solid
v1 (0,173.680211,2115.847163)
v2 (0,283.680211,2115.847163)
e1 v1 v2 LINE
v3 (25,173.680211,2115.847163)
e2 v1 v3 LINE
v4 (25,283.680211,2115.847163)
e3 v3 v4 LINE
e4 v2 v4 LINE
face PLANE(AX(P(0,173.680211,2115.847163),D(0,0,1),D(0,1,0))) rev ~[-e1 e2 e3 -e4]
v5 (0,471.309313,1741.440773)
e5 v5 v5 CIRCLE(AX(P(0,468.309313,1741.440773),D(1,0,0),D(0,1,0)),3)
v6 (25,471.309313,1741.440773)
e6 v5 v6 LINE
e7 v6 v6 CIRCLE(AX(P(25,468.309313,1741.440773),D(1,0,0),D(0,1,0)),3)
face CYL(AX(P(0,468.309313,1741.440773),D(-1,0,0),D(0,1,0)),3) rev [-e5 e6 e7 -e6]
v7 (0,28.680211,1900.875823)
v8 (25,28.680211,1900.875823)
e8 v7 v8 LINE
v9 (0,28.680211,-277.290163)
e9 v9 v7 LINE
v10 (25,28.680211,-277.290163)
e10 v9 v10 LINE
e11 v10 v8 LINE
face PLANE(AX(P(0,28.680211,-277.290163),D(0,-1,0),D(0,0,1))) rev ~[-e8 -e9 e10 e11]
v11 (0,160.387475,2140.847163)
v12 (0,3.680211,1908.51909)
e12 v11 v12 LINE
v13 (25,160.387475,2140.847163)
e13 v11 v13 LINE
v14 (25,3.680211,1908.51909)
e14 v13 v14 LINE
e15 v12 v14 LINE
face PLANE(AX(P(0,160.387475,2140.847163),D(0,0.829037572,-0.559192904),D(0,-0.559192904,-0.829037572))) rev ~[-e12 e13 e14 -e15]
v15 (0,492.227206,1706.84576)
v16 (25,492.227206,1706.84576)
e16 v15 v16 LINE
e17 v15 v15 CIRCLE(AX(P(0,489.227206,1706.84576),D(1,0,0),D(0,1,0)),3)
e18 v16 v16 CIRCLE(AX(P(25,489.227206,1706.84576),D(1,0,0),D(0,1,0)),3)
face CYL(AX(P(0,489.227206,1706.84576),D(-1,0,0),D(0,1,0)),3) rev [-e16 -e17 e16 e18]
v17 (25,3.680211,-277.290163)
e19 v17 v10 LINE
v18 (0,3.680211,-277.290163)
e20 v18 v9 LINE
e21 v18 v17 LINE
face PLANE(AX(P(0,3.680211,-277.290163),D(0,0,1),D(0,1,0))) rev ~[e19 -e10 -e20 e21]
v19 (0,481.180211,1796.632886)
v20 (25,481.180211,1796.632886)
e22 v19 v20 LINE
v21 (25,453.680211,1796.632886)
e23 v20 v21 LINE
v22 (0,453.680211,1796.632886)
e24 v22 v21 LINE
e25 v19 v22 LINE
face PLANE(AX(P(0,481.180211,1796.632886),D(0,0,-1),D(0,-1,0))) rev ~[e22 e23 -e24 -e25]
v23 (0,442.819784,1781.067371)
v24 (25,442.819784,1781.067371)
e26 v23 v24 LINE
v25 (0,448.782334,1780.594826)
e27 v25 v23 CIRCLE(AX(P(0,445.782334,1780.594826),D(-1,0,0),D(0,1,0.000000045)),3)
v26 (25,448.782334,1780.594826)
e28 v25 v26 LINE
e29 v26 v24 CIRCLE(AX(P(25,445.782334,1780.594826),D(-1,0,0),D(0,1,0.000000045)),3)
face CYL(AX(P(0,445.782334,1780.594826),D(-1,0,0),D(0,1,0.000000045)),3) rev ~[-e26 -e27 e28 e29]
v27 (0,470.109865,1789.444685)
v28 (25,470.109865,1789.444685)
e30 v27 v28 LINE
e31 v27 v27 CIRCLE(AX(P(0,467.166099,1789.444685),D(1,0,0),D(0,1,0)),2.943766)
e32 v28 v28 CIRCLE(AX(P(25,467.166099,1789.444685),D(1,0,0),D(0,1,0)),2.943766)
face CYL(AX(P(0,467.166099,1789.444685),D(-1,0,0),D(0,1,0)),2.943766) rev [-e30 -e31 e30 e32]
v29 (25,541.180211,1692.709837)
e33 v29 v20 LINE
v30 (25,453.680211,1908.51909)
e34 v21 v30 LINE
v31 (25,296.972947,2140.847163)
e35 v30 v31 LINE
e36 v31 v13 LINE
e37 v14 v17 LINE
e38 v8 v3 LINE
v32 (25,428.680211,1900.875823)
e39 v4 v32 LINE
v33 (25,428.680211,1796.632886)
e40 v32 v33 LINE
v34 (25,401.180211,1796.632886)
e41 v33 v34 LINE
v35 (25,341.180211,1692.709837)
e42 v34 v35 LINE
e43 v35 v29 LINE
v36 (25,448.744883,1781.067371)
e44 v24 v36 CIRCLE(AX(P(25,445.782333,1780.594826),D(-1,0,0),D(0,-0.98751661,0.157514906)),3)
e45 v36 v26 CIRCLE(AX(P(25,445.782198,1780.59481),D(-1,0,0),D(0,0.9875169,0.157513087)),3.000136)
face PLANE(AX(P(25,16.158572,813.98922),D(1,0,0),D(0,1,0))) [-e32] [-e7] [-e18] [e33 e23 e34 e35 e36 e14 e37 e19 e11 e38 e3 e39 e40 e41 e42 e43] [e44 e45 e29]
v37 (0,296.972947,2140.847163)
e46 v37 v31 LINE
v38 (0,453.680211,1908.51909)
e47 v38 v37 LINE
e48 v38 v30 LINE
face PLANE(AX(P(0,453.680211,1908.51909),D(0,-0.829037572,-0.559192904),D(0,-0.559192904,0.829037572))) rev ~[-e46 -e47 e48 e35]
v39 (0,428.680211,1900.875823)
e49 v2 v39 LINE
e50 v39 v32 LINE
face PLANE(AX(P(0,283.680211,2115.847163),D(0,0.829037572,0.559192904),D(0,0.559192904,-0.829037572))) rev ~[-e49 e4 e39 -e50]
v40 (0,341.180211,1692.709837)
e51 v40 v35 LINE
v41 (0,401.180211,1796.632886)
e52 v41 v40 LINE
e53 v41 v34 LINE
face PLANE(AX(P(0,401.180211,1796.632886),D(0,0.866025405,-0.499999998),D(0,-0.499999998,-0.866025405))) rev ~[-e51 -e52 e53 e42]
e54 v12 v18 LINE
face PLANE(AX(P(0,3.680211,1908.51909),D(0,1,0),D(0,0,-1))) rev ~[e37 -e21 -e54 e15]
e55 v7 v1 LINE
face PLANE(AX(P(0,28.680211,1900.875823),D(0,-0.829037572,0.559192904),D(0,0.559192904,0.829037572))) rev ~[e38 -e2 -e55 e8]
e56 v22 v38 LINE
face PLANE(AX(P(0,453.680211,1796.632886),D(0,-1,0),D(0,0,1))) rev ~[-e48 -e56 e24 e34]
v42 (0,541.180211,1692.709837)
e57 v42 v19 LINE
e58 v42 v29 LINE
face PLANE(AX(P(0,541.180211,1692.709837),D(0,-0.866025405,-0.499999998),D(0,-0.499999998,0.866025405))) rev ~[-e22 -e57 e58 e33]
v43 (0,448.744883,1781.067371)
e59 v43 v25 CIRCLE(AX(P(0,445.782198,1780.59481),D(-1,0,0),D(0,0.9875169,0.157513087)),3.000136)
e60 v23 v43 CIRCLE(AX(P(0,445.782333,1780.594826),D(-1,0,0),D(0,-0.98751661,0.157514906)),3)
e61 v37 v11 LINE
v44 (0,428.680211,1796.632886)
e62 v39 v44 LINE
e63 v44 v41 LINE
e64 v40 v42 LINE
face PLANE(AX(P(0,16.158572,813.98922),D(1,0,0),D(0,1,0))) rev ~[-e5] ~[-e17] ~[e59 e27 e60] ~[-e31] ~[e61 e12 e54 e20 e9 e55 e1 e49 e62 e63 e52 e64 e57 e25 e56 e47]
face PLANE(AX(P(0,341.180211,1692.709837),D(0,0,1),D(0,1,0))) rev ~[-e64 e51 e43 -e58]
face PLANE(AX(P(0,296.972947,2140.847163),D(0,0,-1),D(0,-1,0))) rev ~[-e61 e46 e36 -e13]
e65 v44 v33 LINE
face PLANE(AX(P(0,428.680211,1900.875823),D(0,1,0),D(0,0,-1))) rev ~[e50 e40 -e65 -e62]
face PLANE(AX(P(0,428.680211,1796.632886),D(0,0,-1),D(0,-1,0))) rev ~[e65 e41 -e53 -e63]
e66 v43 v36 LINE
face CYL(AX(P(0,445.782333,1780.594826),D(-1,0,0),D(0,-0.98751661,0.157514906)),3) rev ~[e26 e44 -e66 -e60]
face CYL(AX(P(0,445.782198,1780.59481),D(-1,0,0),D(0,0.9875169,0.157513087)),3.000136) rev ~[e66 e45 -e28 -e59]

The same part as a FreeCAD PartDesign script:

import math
import FreeCAD as App
import Part
import Sketcher
from FreeCAD import Vector
Q = App.Units.Quantity

doc = App.newDocument("Part")
body = doc.addObject("PartDesign::Body", "Body")

# Sketch on YZ plane
sketch1 = body.newObject("Sketcher::SketchObject", "Sketch")
sketch1.AttachmentSupport = (doc.getObject("YZ_Plane"), [""])
sketch1.MapMode = "FlatFace"
sketch1.addGeometry([
    Part.LineSegment(Vector(3.680211, 1908.51909, 0), Vector(3.680211, -277.290163, 0)),  # 0
    Part.LineSegment(Vector(3.680211, -277.290163, 0), Vector(28.680211, -277.290163, 0)),  # 1
    Part.LineSegment(Vector(28.680211, -277.290163, 0), Vector(28.680211, 1900.875823, 0)),  # 2
    Part.LineSegment(Vector(28.680211, 1900.875823, 0), Vector(173.680211, 2115.847163, 0)),  # 3
    Part.LineSegment(Vector(173.680211, 2115.847163, 0), Vector(283.680211, 2115.847163, 0)),  # 4
    Part.LineSegment(Vector(283.680211, 2115.847163, 0), Vector(428.680211, 1900.875823, 0)),  # 5
    Part.LineSegment(Vector(428.680211, 1900.875823, 0), Vector(428.680211, 1796.632886, 0)),  # 6
    Part.LineSegment(Vector(428.680211, 1796.632886, 0), Vector(401.180211, 1796.632886, 0)),  # 7
    Part.LineSegment(Vector(401.180211, 1796.632886, 0), Vector(341.180211, 1692.709837, 0)),  # 8
    Part.LineSegment(Vector(341.180211, 1692.709837, 0), Vector(541.180211, 1692.709837, 0)),  # 9
    Part.LineSegment(Vector(541.180211, 1692.709837, 0), Vector(481.180211, 1796.632886, 0)),  # 10
    Part.LineSegment(Vector(481.180211, 1796.632886, 0), Vector(453.680211, 1796.632886, 0)),  # 11
    Part.LineSegment(Vector(453.680211, 1796.632886, 0), Vector(453.680211, 1908.51909, 0)),  # 12
    Part.LineSegment(Vector(453.680211, 1908.51909, 0), Vector(296.972947, 2140.847163, 0)),  # 13
    Part.LineSegment(Vector(296.972947, 2140.847163, 0), Vector(160.387475, 2140.847163, 0)),  # 14
    Part.LineSegment(Vector(160.387475, 2140.847163, 0), Vector(3.680211, 1908.51909, 0)),  # 15
    Part.Circle(Vector(489.227206, 1706.84576, 0), Vector(0, 0, 1), 3),  # 16
    Part.Circle(Vector(468.309313, 1741.440773, 0), Vector(0, 0, 1), 3),  # 17
    Part.ArcOfCircle(Part.Circle(Vector(445.782333, 1780.594826, 0), Vector(0, 0, 1), 3), math.radians(9.062682), math.radians(170.937318)),  # 18
    Part.ArcOfCircle(Part.Circle(Vector(445.782198, 1780.59481, 0), Vector(0, 0, 1), 3.000136), math.radians(0.0003), math.radians(9.062576)),  # 19
    Part.ArcOfCircle(Part.Circle(Vector(445.782334, 1780.594826, 0), Vector(0, 0, 1), 3), math.radians(170.937311), math.radians(360.000003)),  # 20
    Part.Circle(Vector(467.166099, 1789.444685, 0), Vector(0, 0, 1), 2.943766),  # 21
], False)
sketch1.addConstraint([
    Sketcher.Constraint("Coincident", 0, 2, 1, 1),
    Sketcher.Constraint("Coincident", 1, 2, 2, 1),
    Sketcher.Constraint("Coincident", 2, 2, 3, 1),
    Sketcher.Constraint("Coincident", 3, 2, 4, 1),
    Sketcher.Constraint("Coincident", 4, 2, 5, 1),
    Sketcher.Constraint("Coincident", 5, 2, 6, 1),
    Sketcher.Constraint("Coincident", 6, 2, 7, 1),
    Sketcher.Constraint("Coincident", 7, 2, 8, 1),
    Sketcher.Constraint("Coincident", 8, 2, 9, 1),
    Sketcher.Constraint("Coincident", 9, 2, 10, 1),
    Sketcher.Constraint("Coincident", 10, 2, 11, 1),
    Sketcher.Constraint("Coincident", 11, 2, 12, 1),
    Sketcher.Constraint("Coincident", 12, 2, 13, 1),
    Sketcher.Constraint("Coincident", 13, 2, 14, 1),
    Sketcher.Constraint("Coincident", 14, 2, 15, 1),
    Sketcher.Constraint("Coincident", 15, 2, 0, 1),
    Sketcher.Constraint("Coincident", 18, 1, 19, 2),
    Sketcher.Constraint("Coincident", 19, 1, 20, 2),
    Sketcher.Constraint("Coincident", 20, 1, 18, 2),
    Sketcher.Constraint("Vertical", 0),
    Sketcher.Constraint("Horizontal", 1),
    Sketcher.Constraint("Vertical", 2),
    Sketcher.Constraint("Horizontal", 4),
    Sketcher.Constraint("Vertical", 6),
    Sketcher.Constraint("Horizontal", 7),
    Sketcher.Constraint("Horizontal", 9),
    Sketcher.Constraint("Horizontal", 11),
    Sketcher.Constraint("Vertical", 12),
    Sketcher.Constraint("Horizontal", 14),
    Sketcher.Constraint("Coincident", 20, 3, 18, 3),
    Sketcher.Constraint("Diameter", 16, Q("6 mm")),
    Sketcher.Constraint("Diameter", 17, Q("6 mm")),
    Sketcher.Constraint("Radius", 18, Q("3 mm")),
    Sketcher.Constraint("DistanceX", 1, 1, 1, 2, Q("25 mm")),
    Sketcher.Constraint("DistanceX", 4, 1, 4, 2, Q("110 mm")),
    Sketcher.Constraint("DistanceX", 9, 1, 9, 2, Q("200 mm")),
    Sketcher.Constraint("Distance", 8, Q("120 mm")),
    Sketcher.Constraint("Distance", 10, Q("120 mm")),
    Sketcher.Constraint("DistanceX", 7, 2, 7, 1, Q("27.5 mm")),
    Sketcher.Constraint("DistanceX", 11, 2, 11, 1, Q("27.5 mm")),
    Sketcher.Constraint("DistanceX", 2, 2, 3, 2, Q("145 mm")),
    Sketcher.Constraint("DistanceX", 8, 2, 7, 2, Q("60 mm")),
    Sketcher.Constraint("DistanceX", 6, 2, 11, 2, Q("25 mm")),
    Sketcher.Constraint("DistanceY", 4, 2, 13, 2, Q("25 mm")),
    Sketcher.Constraint("Diameter", 21, Q("5.887532 mm")),
    Sketcher.Constraint("Radius", 19, Q("3.000136 mm")),
    Sketcher.Constraint("DistanceX", 14, 2, 14, 1, Q("136.585472 mm")),
    Sketcher.Constraint("DistanceX", -1, 1, 21, 3, Q("467.166099 mm")),
    Sketcher.Constraint("DistanceX", 19, 3, 21, 3, Q("21.383901 mm")),
    Sketcher.Constraint("DistanceX", 0, 2, 17, 3, Q("464.629102 mm")),
    Sketcher.Constraint("DistanceX", 5, 2, 17, 3, Q("39.629102 mm")),
    Sketcher.Constraint("DistanceY", 21, 3, 6, 2, Q("7.188201 mm")),
    Sketcher.Constraint("DistanceX", 20, 1, 18, 1, Q("5.925099 mm")),
    Sketcher.Constraint("Distance", 3, Q("259.302289 mm")),
    Sketcher.Constraint("Distance", 5, Q("259.302289 mm")),
    Sketcher.Constraint("Distance", 13, Q("280.238292 mm")),
    Sketcher.Constraint("Distance", 15, Q("280.238292 mm")),
    Sketcher.Constraint("DistanceY", 0, 2, 0, 1, Q("2185.809253 mm")),
    Sketcher.Constraint("DistanceY", 2, 1, 2, 2, Q("2178.165986 mm")),
    Sketcher.Constraint("DistanceY", 6, 2, 6, 1, Q("104.242937 mm")),
    Sketcher.Constraint("DistanceY", -1, 1, 16, 3, Q("1706.84576 mm")),
    Sketcher.Constraint("DistanceY", -1, 1, 19, 3, Q("1780.59481 mm")),
    Sketcher.Constraint("DistanceX", -1, 1, 0, 2, Q("3.680211 mm")),
    Sketcher.Constraint("DistanceY", -1, 1, 12, 2, Q("1908.51909 mm")),
    Sketcher.Constraint("DistanceY", -1, 1, 18, 1, Q("1781.067371 mm")),
    Sketcher.Constraint("DistanceX", 19, 3, 16, 3, Q("43.445008 mm")),
    Sketcher.Constraint("DistanceY", 17, 3, 21, 3, Q("48.003912 mm")),
    Sketcher.Constraint("DistanceY", 19, 1, 11, 2, Q("16.03806 mm")),
])
pad1 = body.newObject("PartDesign::Pad", "Pad")
pad1.Profile = sketch1
pad1.Length = 25

doc.recompute()
